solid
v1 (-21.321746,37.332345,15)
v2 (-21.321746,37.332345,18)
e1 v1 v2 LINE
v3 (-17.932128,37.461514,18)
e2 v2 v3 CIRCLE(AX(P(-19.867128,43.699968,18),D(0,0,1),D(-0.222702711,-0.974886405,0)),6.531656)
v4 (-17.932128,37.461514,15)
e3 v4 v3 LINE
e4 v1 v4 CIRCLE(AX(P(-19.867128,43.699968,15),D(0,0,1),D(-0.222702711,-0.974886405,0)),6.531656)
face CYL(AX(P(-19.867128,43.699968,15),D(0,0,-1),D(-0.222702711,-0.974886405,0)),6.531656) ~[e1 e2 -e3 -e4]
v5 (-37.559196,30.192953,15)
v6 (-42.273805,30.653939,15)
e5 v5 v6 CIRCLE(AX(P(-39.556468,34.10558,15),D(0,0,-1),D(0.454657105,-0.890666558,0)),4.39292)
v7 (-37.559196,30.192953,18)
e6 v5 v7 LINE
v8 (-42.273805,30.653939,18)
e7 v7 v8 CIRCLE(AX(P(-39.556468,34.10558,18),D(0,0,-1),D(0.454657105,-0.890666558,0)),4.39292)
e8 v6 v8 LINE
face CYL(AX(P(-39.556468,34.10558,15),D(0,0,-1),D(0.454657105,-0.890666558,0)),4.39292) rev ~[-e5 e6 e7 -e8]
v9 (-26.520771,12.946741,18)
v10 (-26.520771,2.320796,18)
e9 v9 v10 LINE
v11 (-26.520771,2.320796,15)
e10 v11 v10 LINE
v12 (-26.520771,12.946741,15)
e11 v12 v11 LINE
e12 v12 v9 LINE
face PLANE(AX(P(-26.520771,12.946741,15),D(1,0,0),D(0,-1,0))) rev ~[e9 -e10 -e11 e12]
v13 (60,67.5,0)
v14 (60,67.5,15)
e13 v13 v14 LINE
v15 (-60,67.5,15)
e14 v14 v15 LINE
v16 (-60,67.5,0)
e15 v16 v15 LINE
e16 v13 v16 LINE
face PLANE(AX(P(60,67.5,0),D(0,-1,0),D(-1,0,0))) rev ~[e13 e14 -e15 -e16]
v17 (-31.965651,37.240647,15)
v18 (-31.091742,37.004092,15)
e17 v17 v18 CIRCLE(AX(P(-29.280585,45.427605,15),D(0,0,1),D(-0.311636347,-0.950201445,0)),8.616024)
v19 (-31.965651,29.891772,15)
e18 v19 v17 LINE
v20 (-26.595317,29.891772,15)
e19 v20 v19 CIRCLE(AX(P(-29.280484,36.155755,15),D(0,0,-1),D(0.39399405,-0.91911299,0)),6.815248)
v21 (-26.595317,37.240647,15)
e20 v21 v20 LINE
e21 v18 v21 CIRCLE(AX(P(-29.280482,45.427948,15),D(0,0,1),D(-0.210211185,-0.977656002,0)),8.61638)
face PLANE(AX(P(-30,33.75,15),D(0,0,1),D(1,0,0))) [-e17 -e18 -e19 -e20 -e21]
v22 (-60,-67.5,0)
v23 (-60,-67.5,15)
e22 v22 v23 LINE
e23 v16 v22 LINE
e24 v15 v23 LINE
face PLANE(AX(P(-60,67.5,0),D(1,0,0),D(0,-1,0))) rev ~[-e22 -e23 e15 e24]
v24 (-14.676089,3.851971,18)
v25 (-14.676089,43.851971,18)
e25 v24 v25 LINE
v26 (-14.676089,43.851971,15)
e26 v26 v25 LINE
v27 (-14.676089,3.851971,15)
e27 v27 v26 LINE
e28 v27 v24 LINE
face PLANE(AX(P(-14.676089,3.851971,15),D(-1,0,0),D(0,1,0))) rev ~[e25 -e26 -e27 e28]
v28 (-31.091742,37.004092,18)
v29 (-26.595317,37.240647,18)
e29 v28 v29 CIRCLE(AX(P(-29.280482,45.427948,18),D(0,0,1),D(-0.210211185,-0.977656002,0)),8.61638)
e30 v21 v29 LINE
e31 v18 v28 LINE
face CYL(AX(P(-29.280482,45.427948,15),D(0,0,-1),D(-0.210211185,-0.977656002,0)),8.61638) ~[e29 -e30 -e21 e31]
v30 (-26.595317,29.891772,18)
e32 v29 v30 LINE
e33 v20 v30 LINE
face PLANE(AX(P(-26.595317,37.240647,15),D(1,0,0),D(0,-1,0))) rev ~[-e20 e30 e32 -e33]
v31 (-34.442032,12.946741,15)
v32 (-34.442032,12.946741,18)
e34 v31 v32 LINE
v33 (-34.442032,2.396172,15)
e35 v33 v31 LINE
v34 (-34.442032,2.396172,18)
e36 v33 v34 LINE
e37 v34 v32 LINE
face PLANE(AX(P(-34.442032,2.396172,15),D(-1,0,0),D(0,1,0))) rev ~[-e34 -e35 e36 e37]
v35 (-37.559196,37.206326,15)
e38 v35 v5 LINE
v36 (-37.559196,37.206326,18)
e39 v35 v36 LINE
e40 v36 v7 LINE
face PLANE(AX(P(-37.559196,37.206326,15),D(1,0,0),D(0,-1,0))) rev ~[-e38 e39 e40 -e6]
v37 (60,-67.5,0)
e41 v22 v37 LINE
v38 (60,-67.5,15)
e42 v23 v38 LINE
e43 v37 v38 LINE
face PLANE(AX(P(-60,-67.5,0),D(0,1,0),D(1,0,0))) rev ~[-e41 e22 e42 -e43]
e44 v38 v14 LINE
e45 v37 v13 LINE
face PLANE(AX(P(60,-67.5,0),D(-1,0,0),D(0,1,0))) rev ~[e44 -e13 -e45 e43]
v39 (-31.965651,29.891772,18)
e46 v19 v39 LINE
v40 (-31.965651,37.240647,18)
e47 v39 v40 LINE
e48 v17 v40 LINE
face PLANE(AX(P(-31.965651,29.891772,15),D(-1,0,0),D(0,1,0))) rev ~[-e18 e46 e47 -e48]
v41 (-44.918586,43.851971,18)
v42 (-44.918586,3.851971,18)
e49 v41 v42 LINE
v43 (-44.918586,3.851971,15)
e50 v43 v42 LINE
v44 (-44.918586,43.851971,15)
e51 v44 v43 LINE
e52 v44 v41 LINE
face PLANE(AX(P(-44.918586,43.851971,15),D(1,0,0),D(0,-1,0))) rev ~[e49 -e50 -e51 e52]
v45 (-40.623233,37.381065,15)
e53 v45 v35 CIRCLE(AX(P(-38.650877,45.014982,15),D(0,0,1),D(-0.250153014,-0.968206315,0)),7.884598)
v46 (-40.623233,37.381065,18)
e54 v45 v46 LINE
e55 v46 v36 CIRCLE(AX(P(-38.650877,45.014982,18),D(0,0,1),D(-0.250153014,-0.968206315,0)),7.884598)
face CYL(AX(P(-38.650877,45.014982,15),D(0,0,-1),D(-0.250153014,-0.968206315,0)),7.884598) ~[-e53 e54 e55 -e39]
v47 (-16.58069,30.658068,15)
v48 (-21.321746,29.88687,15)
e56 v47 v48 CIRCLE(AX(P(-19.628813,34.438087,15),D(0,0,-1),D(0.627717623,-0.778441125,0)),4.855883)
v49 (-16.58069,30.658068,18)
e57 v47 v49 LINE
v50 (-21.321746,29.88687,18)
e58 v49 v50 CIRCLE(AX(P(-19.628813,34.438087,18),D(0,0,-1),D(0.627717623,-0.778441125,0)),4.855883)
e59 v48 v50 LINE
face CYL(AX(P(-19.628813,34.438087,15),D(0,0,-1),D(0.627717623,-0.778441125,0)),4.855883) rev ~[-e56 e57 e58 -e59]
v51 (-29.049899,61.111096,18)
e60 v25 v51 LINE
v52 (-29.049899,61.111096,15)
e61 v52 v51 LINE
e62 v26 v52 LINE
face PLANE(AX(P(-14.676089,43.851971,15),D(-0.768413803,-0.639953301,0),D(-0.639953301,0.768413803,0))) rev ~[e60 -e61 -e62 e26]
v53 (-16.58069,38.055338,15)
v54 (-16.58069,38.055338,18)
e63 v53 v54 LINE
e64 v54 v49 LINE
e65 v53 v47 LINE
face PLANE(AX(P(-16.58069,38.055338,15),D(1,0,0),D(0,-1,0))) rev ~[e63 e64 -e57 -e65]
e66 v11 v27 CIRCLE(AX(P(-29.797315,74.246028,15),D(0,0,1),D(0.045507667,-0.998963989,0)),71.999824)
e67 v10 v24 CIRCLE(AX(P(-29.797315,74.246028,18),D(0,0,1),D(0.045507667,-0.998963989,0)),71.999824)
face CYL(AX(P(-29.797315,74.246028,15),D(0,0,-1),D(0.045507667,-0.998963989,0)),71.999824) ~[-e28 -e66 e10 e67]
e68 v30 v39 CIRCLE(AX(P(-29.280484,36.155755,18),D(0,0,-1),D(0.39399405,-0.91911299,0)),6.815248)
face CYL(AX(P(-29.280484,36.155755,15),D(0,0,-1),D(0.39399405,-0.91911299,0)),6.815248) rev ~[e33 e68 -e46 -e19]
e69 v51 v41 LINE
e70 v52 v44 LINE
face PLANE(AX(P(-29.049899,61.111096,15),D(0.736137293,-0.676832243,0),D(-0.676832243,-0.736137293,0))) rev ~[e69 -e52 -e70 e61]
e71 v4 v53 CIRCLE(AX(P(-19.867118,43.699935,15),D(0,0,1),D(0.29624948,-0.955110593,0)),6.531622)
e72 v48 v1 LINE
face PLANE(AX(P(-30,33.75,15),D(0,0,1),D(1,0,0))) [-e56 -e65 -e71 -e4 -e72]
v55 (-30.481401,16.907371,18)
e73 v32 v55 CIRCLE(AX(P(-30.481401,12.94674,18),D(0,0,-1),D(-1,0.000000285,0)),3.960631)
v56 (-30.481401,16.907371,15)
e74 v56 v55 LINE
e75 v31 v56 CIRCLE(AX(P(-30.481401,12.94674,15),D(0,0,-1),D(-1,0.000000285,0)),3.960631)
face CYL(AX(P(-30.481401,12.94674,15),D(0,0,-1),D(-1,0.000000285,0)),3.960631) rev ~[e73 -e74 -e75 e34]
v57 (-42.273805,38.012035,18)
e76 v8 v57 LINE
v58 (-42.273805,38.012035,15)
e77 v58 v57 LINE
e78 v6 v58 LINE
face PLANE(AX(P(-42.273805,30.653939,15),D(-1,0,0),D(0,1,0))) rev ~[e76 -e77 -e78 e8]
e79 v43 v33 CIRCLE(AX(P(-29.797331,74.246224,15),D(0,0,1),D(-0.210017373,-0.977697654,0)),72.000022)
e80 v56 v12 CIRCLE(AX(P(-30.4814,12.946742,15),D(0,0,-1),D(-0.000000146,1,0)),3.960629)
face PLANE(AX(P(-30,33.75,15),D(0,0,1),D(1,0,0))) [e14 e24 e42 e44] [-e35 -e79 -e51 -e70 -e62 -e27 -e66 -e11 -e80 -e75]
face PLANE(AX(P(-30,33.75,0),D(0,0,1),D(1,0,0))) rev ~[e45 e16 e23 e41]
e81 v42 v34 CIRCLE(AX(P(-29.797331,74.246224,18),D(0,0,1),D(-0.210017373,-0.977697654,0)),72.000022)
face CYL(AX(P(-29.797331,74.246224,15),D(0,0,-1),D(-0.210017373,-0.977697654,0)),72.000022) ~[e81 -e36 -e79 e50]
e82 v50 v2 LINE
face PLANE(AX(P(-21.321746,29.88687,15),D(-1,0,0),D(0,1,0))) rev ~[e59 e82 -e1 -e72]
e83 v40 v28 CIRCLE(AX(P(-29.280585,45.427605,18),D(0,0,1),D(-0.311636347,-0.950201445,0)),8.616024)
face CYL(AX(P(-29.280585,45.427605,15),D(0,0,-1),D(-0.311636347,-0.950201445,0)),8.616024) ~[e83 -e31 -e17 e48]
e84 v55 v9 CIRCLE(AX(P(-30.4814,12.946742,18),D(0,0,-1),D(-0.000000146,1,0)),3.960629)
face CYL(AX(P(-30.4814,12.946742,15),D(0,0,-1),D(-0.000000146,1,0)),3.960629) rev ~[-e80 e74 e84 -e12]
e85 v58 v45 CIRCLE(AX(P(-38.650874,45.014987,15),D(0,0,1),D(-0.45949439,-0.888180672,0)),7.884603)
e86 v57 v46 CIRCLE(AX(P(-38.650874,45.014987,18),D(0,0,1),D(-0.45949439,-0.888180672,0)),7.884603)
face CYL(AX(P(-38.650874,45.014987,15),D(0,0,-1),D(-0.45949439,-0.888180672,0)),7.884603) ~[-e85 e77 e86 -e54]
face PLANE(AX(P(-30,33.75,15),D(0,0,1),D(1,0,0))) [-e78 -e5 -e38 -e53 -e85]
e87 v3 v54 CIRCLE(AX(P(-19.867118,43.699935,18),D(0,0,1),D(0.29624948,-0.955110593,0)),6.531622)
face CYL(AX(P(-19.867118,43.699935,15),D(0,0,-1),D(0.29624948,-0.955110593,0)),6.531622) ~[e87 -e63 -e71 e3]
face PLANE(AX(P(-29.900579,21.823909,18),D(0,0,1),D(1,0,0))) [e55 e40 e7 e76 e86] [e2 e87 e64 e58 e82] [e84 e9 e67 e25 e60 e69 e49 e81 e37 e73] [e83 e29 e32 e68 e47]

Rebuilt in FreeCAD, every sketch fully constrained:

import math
import FreeCAD as App
import Part
import Sketcher

V = App.Vector

doc = App.newDocument("Part")
body = doc.addObject("PartDesign::Body", "Body")

sketch1 = doc.addObject("Sketcher::SketchObject", "Sketch")
body.addObject(sketch1)
sketch1.AttachmentSupport = (doc.XY_Plane, [""])
sketch1.MapMode = "FlatFace"
sketch1.addGeometry(Part.LineSegment(V(-60, 68, 0), V(-60, -68, 0)), False)
sketch1.addGeometry(Part.LineSegment(V(-60, -68, 0), V(60, -68, 0)), False)
sketch1.addGeometry(Part.LineSegment(V(60, -68, 0), V(60, 68, 0)), False)
sketch1.addGeometry(Part.LineSegment(V(60, 68, 0), V(-60, 68, 0)), False)
sketch1.addConstraint(Sketcher.Constraint("Coincident", 0, 2, 1, 1))
sketch1.addConstraint(Sketcher.Constraint("Coincident", 1, 2, 2, 1))
sketch1.addConstraint(Sketcher.Constraint("Coincident", 2, 2, 3, 1))
sketch1.addConstraint(Sketcher.Constraint("Coincident", 3, 2, 0, 1))
sketch1.addConstraint(Sketcher.Constraint("Vertical", 0))
sketch1.addConstraint(Sketcher.Constraint("Horizontal", 1))
sketch1.addConstraint(Sketcher.Constraint("Vertical", 2))
sketch1.addConstraint(Sketcher.Constraint("Horizontal", 3))
sketch1.addConstraint(Sketcher.Constraint("Symmetric", 0, 2, 2, 2, -1, 1))
sketch1.addConstraint(Sketcher.Constraint("DistanceX", 1, 1, 1, 2, 120.0))
sketch1.addConstraint(Sketcher.Constraint("DistanceY", 0, 2, 0, 1, 135.0))
pad1 = doc.addObject("PartDesign::Pad", "Pad")
body.addObject(pad1)
pad1.Profile = sketch1
pad1.Length = 15

sketch2 = doc.addObject("Sketcher::SketchObject", "Sketch001")
body.addObject(sketch2)
sketch2.AttachmentSupport = (doc.XY_Plane, [""])
sketch2.MapMode = "FlatFace"
sketch2.AttachmentOffset = App.Placement(V(0, 0, 15), App.Rotation())
sketch2.addGeometry(Part.LineSegment(V(-44.9, 43.9, 0), V(-44.9, 3.9, 0)), False)
sketch2.addGeometry(Part.ArcOfCircle(Part.Circle(V(-29.8, 74.2, 0), V(0, 0, 1), 72), math.radians(-102.12), math.radians(-93.7)), False)
sketch2.addGeometry(Part.LineSegment(V(-34.4, 2.4, 0), V(-34.4, 12.9, 0)), False)
sketch2.addGeometry(Part.ArcOfCircle(Part.Circle(V(-30.5, 12.9, 0), V(0, 0, 1), 4), math.radians(90), math.radians(180)), False)
sketch2.addGeometry(Part.ArcOfCircle(Part.Circle(V(-30.5, 12.9, 0), V(0, 0, 1), 4), math.radians(0), math.radians(90)), False)
sketch2.addGeometry(Part.LineSegment(V(-26.5, 12.9, 0), V(-26.5, 2.3, 0)), False)
sketch2.addGeometry(Part.ArcOfCircle(Part.Circle(V(-29.8, 74.2, 0), V(0, 0, 1), 72), math.radians(-87.39), math.radians(-77.88)), False)
sketch2.addGeometry(Part.LineSegment(V(-14.7, 3.9, 0), V(-14.7, 43.9, 0)), False)
sketch2.addGeometry(Part.LineSegment(V(-14.7, 43.9, 0), V(-29, 61.1, 0)), False)
sketch2.addGeometry(Part.LineSegment(V(-29, 61.1, 0), V(-44.9, 43.9, 0)), False)
sketch2.addGeometry(Part.ArcOfCircle(Part.Circle(V(-29.3, 36.2, 0), V(0, 0, 1), 6.8), math.radians(-113), math.radians(-67)), False)
sketch2.addGeometry(Part.LineSegment(V(-32, 29.9, 0), V(-32, 37.2, 0)), False)
sketch2.addGeometry(Part.ArcOfCircle(Part.Circle(V(-29.3, 45.4, 0), V(0, 0, 1), 8.6), math.radians(-108.16), math.radians(-102.13)), False)
sketch2.addGeometry(Part.ArcOfCircle(Part.Circle(V(-29.3, 45.4, 0), V(0, 0, 1), 8.6), math.radians(-102), math.radians(-72)), False)
sketch2.addGeometry(Part.LineSegment(V(-26.6, 37.2, 0), V(-26.6, 29.9, 0)), False)
sketch2.addGeometry(Part.ArcOfCircle(Part.Circle(V(-39.6, 34.1, 0), V(0, 0, 1), 4.4), math.radians(-128), math.radians(-63)), False)
sketch2.addGeometry(Part.LineSegment(V(-42.3, 30.7, 0), V(-42.3, 38, 0)), False)
sketch2.addGeometry(Part.ArcOfCircle(Part.Circle(V(-38.7, 45, 0), V(0, 0, 1), 7.9), math.radians(-117.35), math.radians(-104.49)), False)
sketch2.addGeometry(Part.ArcOfCircle(Part.Circle(V(-38.7, 45, 0), V(0, 0, 1), 7.9), math.radians(-104), math.radians(-82)), False)
sketch2.addGeometry(Part.LineSegment(V(-37.6, 37.2, 0), V(-37.6, 30.2, 0)), False)
sketch2.addGeometry(Part.ArcOfCircle(Part.Circle(V(-19.9, 43.7, 0), V(0, 0, 1), 6.5), math.radians(-103), math.radians(-73)), False)
sketch2.addGeometry(Part.ArcOfCircle(Part.Circle(V(-19.9, 43.7, 0), V(0, 0, 1), 6.5), math.radians(-72.77), math.radians(-59.79)), False)
sketch2.addGeometry(Part.LineSegment(V(-16.6, 38.1, 0), V(-16.6, 30.7, 0)), False)
sketch2.addGeometry(Part.ArcOfCircle(Part.Circle(V(-19.6, 34.4, 0), V(0, 0, 1), 4.9), math.radians(-110), math.radians(-51)), False)
sketch2.addGeometry(Part.LineSegment(V(-21.3, 29.9, 0), V(-21.3, 37.3, 0)), False)
sketch2.addConstraint(Sketcher.Constraint("Coincident", 0, 2, 1, 1))
sketch2.addConstraint(Sketcher.Constraint("Coincident", 1, 2, 2, 1))
sketch2.addConstraint(Sketcher.Constraint("Tangent", 2, 2, 3, 2))
sketch2.addConstraint(Sketcher.Constraint("Tangent", 3, 1, 4, 2))
sketch2.addConstraint(Sketcher.Constraint("Tangent", 4, 1, 5, 1))
sketch2.addConstraint(Sketcher.Constraint("Coincident", 5, 2, 6, 1))
sketch2.addConstraint(Sketcher.Constraint("Coincident", 6, 2, 7, 1))
sketch2.addConstraint(Sketcher.Constraint("Coincident", 7, 2, 8, 1))
sketch2.addConstraint(Sketcher.Constraint("Coincident", 8, 2, 9, 1))
sketch2.addConstraint(Sketcher.Constraint("Coincident", 9, 2, 0, 1))
sketch2.addConstraint(Sketcher.Constraint("Coincident", 10, 1, 11, 1))
sketch2.addConstraint(Sketcher.Constraint("Coincident", 11, 2, 12, 1))
sketch2.addConstraint(Sketcher.Constraint("Coincident", 12, 2, 13, 1))
sketch2.addConstraint(Sketcher.Constraint("Coincident", 13, 2, 14, 1))
sketch2.addConstraint(Sketcher.Constraint("Coincident", 14, 2, 10, 2))
sketch2.addConstraint(Sketcher.Constraint("Coincident", 15, 1, 16, 1))
sketch2.addConstraint(Sketcher.Constraint("Coincident", 16, 2, 17, 1))
sketch2.addConstraint(Sketcher.Constraint("Tangent", 17, 2, 18, 1))
sketch2.addConstraint(Sketcher.Constraint("Coincident", 18, 2, 19, 1))
sketch2.addConstraint(Sketcher.Constraint("Coincident", 19, 2, 15, 2))
sketch2.addConstraint(Sketcher.Constraint("Tangent", 20, 2, 21, 1))
sketch2.addConstraint(Sketcher.Constraint("Coincident", 21, 2, 22, 1))
sketch2.addConstraint(Sketcher.Constraint("Coincident", 22, 2, 23, 2))
sketch2.addConstraint(Sketcher.Constraint("Coincident", 23, 1, 24, 1))
sketch2.addConstraint(Sketcher.Constraint("Coincident", 24, 2, 20, 1))
sketch2.addConstraint(Sketcher.Constraint("Vertical", 0))
sketch2.addConstraint(Sketcher.Constraint("Vertical", 2))
sketch2.addConstraint(Sketcher.Constraint("Vertical", 5))
sketch2.addConstraint(Sketcher.Constraint("Vertical", 7))
sketch2.addConstraint(Sketcher.Constraint("Vertical", 11))
sketch2.addConstraint(Sketcher.Constraint("Vertical", 14))
sketch2.addConstraint(Sketcher.Constraint("Vertical", 16))
sketch2.addConstraint(Sketcher.Constraint("Vertical", 19))
sketch2.addConstraint(Sketcher.Constraint("Vertical", 22))
sketch2.addConstraint(Sketcher.Constraint("Vertical", 24))
sketch2.addConstraint(Sketcher.Constraint("Equal", 3, 4))
sketch2.addConstraint(Sketcher.Constraint("Horizontal", 0, 2, 6, 2))
sketch2.addConstraint(Sketcher.Constraint("Horizontal", 7, 2, 9, 2))
sketch2.addConstraint(Sketcher.Constraint("Horizontal", 11, 2, 13, 2))
sketch2.addConstraint(Sketcher.Constraint("Horizontal", 10, 1, 14, 2))
sketch2.addConstraint(Sketcher.Constraint("Vertical", 10, 3, 13, 3))
sketch2.addConstraint(Sketcher.Constraint("Vertical", 4, 3, 3, 1))
sketch2.addConstraint(Sketcher.Constraint("DistanceY", 0, 2, 0, 1, 40.0))
sketch2.addConstraint(Sketcher.Constraint("Radius", 1, 72.000022))
sketch2.addConstraint(Sketcher.Constraint("Radius", 3, 3.960631))
sketch2.addConstraint(Sketcher.Constraint("Radius", 13, 8.61638))
sketch2.addConstraint(Sketcher.Constraint("Radius", 15, 4.39292))
sketch2.addConstraint(Sketcher.Constraint("Radius", 21, 6.531622))
sketch2.addConstraint(Sketcher.Constraint("Radius", 6, 71.999824))
sketch2.addConstraint(Sketcher.Constraint("Radius", 10, 6.815248))
sketch2.addConstraint(Sketcher.Constraint("Radius", 12, 8.616024))
sketch2.addConstraint(Sketcher.Constraint("Radius", 17, 7.884603))
sketch2.addConstraint(Sketcher.Constraint("Radius", 18, 7.884598))
sketch2.addConstraint(Sketcher.Constraint("Radius", 20, 6.531656))
sketch2.addConstraint(Sketcher.Constraint("Radius", 23, 4.855883))
sketch2.addConstraint(Sketcher.Constraint("DistanceX", 9, 2, 12, 3, 15.638001))
sketch2.addConstraint(Sketcher.Constraint("DistanceX", 20, 3, 20, 2, 1.935))
sketch2.addConstraint(Sketcher.Constraint("DistanceY", 2, 1, 2, 2, 10.550569))
sketch2.addConstraint(Sketcher.Constraint("DistanceY", 22, 2, 22, 1, 7.39727))
sketch2.addConstraint(Sketcher.Constraint("DistanceX", 3, 3, -1, 1, 30.481401))
sketch2.addConstraint(Sketcher.Constraint("DistanceX", 8, 2, -1, 1, 29.049899))
sketch2.addConstraint(Sketcher.Constraint("DistanceY", 1, 2, 0, 2, 1.455799))
sketch2.addConstraint(Sketcher.Constraint("DistanceY", 3, 1, 10, 1, 12.984401))
sketch2.addConstraint(Sketcher.Constraint("DistanceY", 11, 2, 13, 3, 8.187301))
sketch2.addConstraint(Sketcher.Constraint("DistanceX", 21, 2, 7, 2, 1.904601))
sketch2.addConstraint(Sketcher.Constraint("DistanceY", 23, 1, 22, 2, 0.771198))
sketch2.addConstraint(Sketcher.Constraint("DistanceY", 13, 2, 24, 2, 0.091698))
sketch2.addConstraint(Sketcher.Constraint("DistanceY", 5, 2, 5, 1, 10.625945))
sketch2.addConstraint(Sketcher.Constraint("DistanceY", 11, 1, 11, 2, 7.348875))
sketch2.addConstraint(Sketcher.Constraint("DistanceY", 16, 1, 16, 2, 7.358096))
sketch2.addConstraint(Sketcher.Constraint("DistanceY", 19, 2, 19, 1, 7.013373))
sketch2.addConstraint(Sketcher.Constraint("DistanceY", 24, 1, 24, 2, 7.445475))
sketch2.addConstraint(Sketcher.Constraint("DistanceX", 1, 3, -1, 1, 29.797331))
sketch2.addConstraint(Sketcher.Constraint("DistanceY", -1, 1, 3, 3, 12.94674))
sketch2.addConstraint(Sketcher.Constraint("DistanceX", 15, 3, -1, 1, 39.556468))
sketch2.addConstraint(Sketcher.Constraint("DistanceY", -1, 1, 15, 3, 34.10558))
sketch2.addConstraint(Sketcher.Constraint("DistanceX", 20, 3, -1, 1, 19.867128))
sketch2.addConstraint(Sketcher.Constraint("DistanceX", 6, 2, -1, 1, 14.676089))
sketch2.addConstraint(Sketcher.Constraint("DistanceY", -1, 1, 12, 2, 37.004092))
sketch2.addConstraint(Sketcher.Constraint("DistanceY", -1, 1, 15, 1, 30.653939))
sketch2.addConstraint(Sketcher.Constraint("DistanceX", 17, 3, 12, 3, 9.37029))
sketch2.addConstraint(Sketcher.Constraint("DistanceY", 8, 2, 6, 3, 13.134932))
sketch2.addConstraint(Sketcher.Constraint("DistanceX", 16, 2, 17, 2, 1.650572))
pad2 = doc.addObject("PartDesign::Pad", "Pad001")
body.addObject(pad2)
pad2.Profile = sketch2
pad2.Length = 3

doc.recompute()
